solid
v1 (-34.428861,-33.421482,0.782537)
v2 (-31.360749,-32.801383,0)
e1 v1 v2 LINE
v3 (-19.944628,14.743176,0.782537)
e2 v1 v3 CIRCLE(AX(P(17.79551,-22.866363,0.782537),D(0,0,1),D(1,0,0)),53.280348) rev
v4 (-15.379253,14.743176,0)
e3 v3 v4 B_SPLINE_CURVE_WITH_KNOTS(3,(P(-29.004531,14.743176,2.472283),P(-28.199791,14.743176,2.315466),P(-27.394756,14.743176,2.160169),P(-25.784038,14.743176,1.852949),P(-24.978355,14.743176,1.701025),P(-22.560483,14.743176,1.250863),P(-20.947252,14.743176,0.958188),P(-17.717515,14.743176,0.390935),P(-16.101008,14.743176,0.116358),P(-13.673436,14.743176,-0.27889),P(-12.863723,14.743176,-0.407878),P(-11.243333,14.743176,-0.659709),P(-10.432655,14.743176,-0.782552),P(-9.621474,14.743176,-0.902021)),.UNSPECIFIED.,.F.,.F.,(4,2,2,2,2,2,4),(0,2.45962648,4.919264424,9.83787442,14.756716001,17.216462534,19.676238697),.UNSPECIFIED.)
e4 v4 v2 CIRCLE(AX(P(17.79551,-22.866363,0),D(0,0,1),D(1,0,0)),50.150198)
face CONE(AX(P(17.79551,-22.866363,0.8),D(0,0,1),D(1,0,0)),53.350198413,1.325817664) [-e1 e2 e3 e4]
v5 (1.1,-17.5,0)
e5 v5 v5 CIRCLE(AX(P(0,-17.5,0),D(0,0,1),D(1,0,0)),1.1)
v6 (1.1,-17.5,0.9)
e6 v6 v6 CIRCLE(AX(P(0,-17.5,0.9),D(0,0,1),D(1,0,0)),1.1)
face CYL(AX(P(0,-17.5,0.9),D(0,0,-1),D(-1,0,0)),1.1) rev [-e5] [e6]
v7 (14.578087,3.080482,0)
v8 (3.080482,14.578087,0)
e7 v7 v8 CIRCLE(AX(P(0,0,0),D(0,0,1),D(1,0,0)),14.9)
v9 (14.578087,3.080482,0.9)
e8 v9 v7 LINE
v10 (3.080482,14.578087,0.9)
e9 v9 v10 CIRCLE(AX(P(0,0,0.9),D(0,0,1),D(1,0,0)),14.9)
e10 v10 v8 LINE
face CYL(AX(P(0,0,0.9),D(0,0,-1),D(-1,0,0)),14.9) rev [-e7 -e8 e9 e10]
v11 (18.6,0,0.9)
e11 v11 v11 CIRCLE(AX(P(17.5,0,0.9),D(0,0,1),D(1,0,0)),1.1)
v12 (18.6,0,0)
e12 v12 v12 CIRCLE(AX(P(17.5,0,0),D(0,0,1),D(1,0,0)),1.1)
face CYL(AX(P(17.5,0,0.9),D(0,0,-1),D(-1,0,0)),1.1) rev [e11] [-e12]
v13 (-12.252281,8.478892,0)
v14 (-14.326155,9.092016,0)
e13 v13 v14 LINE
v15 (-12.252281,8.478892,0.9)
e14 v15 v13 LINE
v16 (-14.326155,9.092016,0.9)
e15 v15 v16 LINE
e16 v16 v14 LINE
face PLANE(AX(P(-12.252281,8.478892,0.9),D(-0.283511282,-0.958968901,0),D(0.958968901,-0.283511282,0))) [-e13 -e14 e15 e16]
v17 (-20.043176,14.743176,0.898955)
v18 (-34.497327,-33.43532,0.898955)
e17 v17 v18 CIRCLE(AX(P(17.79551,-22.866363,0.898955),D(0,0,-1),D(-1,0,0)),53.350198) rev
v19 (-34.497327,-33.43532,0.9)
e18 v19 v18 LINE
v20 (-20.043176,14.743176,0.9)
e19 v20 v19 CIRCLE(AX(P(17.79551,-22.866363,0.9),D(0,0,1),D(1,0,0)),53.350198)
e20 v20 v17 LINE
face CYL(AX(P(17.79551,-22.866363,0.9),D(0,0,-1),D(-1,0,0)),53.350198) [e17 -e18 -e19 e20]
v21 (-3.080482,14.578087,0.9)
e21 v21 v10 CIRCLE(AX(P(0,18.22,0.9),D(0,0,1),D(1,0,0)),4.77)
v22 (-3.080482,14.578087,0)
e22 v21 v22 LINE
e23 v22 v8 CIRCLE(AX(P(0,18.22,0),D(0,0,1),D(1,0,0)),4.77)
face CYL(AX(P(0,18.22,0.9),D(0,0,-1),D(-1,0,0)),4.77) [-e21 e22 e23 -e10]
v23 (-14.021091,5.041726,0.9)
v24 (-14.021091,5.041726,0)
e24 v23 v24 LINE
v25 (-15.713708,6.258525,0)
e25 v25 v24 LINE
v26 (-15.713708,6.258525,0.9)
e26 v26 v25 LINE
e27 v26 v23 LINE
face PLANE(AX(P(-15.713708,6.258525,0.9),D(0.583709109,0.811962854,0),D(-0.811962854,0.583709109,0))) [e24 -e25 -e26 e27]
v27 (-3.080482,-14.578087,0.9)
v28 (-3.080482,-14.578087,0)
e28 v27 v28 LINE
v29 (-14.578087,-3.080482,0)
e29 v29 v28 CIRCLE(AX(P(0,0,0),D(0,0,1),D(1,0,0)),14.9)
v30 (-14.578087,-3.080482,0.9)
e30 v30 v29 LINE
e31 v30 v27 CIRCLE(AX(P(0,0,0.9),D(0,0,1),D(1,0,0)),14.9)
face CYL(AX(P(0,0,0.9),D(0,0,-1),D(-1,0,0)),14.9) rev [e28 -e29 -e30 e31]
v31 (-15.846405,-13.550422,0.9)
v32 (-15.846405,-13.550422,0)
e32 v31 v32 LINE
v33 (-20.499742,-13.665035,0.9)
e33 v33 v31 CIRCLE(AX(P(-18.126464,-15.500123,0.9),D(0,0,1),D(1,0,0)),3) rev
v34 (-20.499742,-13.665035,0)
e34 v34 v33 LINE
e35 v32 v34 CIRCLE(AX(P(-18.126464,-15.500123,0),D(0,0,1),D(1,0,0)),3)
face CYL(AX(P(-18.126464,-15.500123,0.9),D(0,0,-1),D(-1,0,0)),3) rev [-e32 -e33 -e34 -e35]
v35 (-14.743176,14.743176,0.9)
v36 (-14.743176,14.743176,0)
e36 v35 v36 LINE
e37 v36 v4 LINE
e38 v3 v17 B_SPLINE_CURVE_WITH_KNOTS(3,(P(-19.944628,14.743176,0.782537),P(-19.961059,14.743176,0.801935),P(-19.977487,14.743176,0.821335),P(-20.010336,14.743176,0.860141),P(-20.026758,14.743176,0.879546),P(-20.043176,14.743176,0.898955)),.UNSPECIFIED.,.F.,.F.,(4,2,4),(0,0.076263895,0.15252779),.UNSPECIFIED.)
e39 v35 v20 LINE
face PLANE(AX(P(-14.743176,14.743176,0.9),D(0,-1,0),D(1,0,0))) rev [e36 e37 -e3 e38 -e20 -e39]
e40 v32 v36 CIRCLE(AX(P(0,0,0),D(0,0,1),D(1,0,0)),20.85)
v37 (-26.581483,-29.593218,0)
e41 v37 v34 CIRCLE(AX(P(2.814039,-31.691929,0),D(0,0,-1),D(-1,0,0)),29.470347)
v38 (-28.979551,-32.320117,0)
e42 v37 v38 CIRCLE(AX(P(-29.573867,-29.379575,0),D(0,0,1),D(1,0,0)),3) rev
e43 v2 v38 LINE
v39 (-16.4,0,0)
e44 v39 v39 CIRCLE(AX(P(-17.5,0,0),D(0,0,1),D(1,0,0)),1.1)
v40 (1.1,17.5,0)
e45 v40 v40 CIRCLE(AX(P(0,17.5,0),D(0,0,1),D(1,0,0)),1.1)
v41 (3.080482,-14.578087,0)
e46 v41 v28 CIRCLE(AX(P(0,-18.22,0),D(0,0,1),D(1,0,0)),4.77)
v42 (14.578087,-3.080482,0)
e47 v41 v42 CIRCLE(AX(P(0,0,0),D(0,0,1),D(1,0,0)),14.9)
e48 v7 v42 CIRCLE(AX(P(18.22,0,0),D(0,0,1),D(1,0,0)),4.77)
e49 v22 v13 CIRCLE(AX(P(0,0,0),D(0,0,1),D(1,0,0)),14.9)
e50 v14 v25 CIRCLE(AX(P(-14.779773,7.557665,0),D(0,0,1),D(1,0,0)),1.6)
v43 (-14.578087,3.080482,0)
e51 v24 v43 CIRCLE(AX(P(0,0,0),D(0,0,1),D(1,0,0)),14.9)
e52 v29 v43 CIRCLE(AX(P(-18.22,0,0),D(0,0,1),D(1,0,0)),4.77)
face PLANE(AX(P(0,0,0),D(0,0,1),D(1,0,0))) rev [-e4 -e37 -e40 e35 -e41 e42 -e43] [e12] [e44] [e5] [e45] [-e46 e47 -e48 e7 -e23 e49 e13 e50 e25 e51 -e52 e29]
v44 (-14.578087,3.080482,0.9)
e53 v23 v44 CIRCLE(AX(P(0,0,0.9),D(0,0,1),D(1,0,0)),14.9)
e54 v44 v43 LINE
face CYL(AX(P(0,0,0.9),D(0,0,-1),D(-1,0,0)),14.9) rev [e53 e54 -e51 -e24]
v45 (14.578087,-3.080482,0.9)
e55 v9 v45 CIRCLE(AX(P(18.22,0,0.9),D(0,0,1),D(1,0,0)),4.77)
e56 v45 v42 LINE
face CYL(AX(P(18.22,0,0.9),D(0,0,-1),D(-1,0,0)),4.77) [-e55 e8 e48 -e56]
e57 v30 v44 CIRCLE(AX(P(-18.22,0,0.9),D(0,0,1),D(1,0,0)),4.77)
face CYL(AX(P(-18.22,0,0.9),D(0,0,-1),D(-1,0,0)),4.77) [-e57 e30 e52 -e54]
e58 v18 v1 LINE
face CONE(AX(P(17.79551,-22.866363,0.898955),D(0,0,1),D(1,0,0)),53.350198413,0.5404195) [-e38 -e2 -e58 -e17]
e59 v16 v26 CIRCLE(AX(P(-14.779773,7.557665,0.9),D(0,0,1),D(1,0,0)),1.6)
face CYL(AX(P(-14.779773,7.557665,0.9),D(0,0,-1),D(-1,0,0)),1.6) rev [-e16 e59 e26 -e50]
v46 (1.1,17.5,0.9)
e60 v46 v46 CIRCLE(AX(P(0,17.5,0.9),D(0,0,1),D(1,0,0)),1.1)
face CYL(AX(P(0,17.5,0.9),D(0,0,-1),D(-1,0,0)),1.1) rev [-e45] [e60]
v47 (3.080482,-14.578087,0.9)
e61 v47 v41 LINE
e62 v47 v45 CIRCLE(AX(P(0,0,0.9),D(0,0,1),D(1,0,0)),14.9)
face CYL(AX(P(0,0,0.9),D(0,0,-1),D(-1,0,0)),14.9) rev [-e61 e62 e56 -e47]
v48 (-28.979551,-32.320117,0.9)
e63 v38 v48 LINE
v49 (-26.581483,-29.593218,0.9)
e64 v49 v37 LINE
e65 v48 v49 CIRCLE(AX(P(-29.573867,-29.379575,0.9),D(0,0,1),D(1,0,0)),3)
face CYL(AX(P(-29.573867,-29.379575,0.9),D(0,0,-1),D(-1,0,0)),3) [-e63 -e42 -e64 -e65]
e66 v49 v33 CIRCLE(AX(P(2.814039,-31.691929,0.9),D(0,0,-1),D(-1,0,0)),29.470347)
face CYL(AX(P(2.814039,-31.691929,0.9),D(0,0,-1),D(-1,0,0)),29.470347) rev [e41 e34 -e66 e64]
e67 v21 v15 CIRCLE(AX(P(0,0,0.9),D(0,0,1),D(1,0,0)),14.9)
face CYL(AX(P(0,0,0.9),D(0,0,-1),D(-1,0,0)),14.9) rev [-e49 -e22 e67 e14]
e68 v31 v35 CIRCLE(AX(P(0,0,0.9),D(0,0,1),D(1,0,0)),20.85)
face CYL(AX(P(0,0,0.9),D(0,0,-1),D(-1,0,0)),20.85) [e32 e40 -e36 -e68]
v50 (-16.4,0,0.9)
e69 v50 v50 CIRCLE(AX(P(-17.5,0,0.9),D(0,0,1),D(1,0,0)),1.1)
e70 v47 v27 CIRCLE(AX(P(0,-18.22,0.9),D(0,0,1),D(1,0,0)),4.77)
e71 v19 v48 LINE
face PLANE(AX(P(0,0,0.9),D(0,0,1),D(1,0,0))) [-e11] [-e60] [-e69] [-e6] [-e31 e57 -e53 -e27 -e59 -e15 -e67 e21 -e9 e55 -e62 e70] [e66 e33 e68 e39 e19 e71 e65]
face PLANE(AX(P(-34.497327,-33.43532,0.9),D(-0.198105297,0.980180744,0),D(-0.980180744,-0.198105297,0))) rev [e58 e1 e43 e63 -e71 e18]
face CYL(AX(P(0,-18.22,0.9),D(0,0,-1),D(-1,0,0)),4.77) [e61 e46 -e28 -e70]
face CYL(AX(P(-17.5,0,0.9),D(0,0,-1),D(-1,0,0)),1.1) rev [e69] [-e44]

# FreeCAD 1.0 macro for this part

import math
import FreeCAD as App
import Part
import Sketcher

V = App.Vector


def edges_at(feature, points):
    """Names of the edges that pass closest to the given points."""
    edges = feature.Shape.Edges
    near = lambda p: min(range(len(edges)), key=lambda i: edges[i].distToShape(Part.Vertex(*p))[0])
    return sorted({f"Edge{near(p) + 1}" for p in points})


def add_polygon(sketch, points):
    """Adds a closed chain of lines whose ends are joined by coincident constraints."""
    first, n = sketch.GeometryCount, len(points)
    for a, b in zip(points, points[1:] + points[:1]):
        sketch.addGeometry(Part.LineSegment(App.Vector(*a, 0), App.Vector(*b, 0)), False)
    for i in range(n):
        sketch.addConstraint(Sketcher.Constraint("Coincident", first + i, 2, first + (i + 1) % n, 1))

doc = App.newDocument("Part")
body = doc.addObject("PartDesign::Body", "Body")

# Sketch on XY plane
sketch1 = doc.addObject("Sketcher::SketchObject", "Sketch")
body.addObject(sketch1)
sketch1.AttachmentSupport = (doc.XY_Plane, [""])
sketch1.MapMode = "FlatFace"
sketch1.addGeometry([
    Part.LineSegment(V(-14.7, 14.7, 0), V(-20, 14.7, 0)),  # 0
    Part.ArcOfCircle(Part.Circle(V(17.8, -22.9, 0), V(0, 0, 1), 53.4), math.radians(135), math.radians(191)),  # 1
    Part.LineSegment(V(-34.5, -33.4, 0), V(-26.7, -31.9, 0)),  # 2
    Part.ArcOfCircle(Part.Circle(V(2.8, -31.7, 0), V(0, 0, 1), 29.5), math.radians(135), math.radians(180)),  # 3
    Part.ArcOfCircle(Part.Circle(V(0, 0, 0), V(0, 0, 1), 20.9), math.radians(-149), math.radians(-100)),  # 4
    Part.ArcOfCircle(Part.Circle(V(0, 0, 0), V(0, 0, 1), 20.9), math.radians(-100), math.radians(80)),  # 5
    Part.ArcOfCircle(Part.Circle(V(0, 0, 0), V(0, 0, 1), 20.8), math.radians(80), math.radians(135)),  # 6
    Part.Circle(V(0, -17.5, 0), V(0, 0, 1), 1.1),  # 7
    Part.Circle(V(-17.5, 0, 0), V(0, 0, 1), 1.1),  # 8
    Part.LineSegment(V(-14, 5, 0), V(-15.7, 6.3, 0)),  # 9
    Part.ArcOfCircle(Part.Circle(V(-14.8, 7.6, 0), V(0, 0, 1), 1.6), math.radians(74), math.radians(234)),  # 10
    Part.LineSegment(V(-14.3, 9.1, 0), V(-12.3, 8.5, 0)),  # 11
    Part.ArcOfCircle(Part.Circle(V(0, 0, 0), V(0, 0, 1), 14.9), math.radians(102), math.radians(145)),  # 12
    Part.ArcOfCircle(Part.Circle(V(0, 18.2, 0), V(0, 0, 1), 4.8), math.radians(-130), math.radians(-50)),  # 13
    Part.ArcOfCircle(Part.Circle(V(0, 0, 0), V(0, 0, 1), 14.9), math.radians(12), math.radians(78)),  # 14
    Part.ArcOfCircle(Part.Circle(V(18.2, 0, 0), V(0, 0, 1), 4.8), math.radians(140), math.radians(220)),  # 15
    Part.ArcOfCircle(Part.Circle(V(0, 0, 0), V(0, 0, 1), 14.9), math.radians(-78), math.radians(-12)),  # 16
    Part.ArcOfCircle(Part.Circle(V(0, -18.2, 0), V(0, 0, 1), 4.8), math.radians(50), math.radians(130)),  # 17
    Part.ArcOfCircle(Part.Circle(V(0, 0, 0), V(0, 0, 1), 14.9), math.radians(-168), math.radians(-102)),  # 18
    Part.ArcOfCircle(Part.Circle(V(-18.2, 0, 0), V(0, 0, 1), 4.8), math.radians(-40), math.radians(40)),  # 19
    Part.ArcOfCircle(Part.Circle(V(0, 0, 0), V(0, 0, 1), 14.9), math.radians(160.22), math.radians(168.07)),  # 20
    Part.Circle(V(17.5, 0, 0), V(0, 0, 1), 1.1),  # 21
    Part.Circle(V(0, 17.5, 0), V(0, 0, 1), 1.1),  # 22
], False)
sketch1.addConstraint([
    Sketcher.Constraint("Coincident", 0, 2, 1, 1),
    Sketcher.Constraint("Coincident", 1, 2, 2, 1),
    Sketcher.Constraint("Coincident", 2, 2, 3, 2),
    Sketcher.Constraint("Coincident", 3, 1, 4, 1),
    Sketcher.Constraint("Tangent", 4, 2, 5, 1),
    Sketcher.Constraint("Tangent", 5, 2, 6, 1),
    Sketcher.Constraint("Coincident", 6, 2, 0, 1),
    Sketcher.Constraint("Tangent", 9, 2, 10, 2),
    Sketcher.Constraint("Tangent", 10, 1, 11, 1),
    Sketcher.Constraint("Coincident", 11, 2, 12, 2),
    Sketcher.Constraint("Coincident", 12, 1, 13, 1),
    Sketcher.Constraint("Coincident", 13, 2, 14, 2),
    Sketcher.Constraint("Coincident", 14, 1, 15, 1),
    Sketcher.Constraint("Coincident", 15, 2, 16, 2),
    Sketcher.Constraint("Coincident", 16, 1, 17, 1),
    Sketcher.Constraint("Coincident", 17, 2, 18, 2),
    Sketcher.Constraint("Coincident", 18, 1, 19, 1),
    Sketcher.Constraint("Coincident", 19, 2, 20, 2),
    Sketcher.Constraint("Coincident", 20, 1, 9, 1),
    Sketcher.Constraint("Horizontal", 0),
    Sketcher.Constraint("Coincident", 4, 3, -1, 1),
    Sketcher.Constraint("Coincident", 12, 3, -1, 1),
    Sketcher.Constraint("Coincident", 14, 3, -1, 1),
    Sketcher.Constraint("Coincident", 16, 3, -1, 1),
    Sketcher.Constraint("Coincident", 18, 3, -1, 1),
    Sketcher.Constraint("Coincident", 20, 3, -1, 1),
    Sketcher.Constraint("Equal", 4, 5),
    Sketcher.Constraint("Equal", 5, 6),
    Sketcher.Constraint("Equal", 7, 8),
    Sketcher.Constraint("Equal", 12, 14),
    Sketcher.Constraint("Equal", 13, 15),
    Sketcher.Constraint("Equal", 14, 16),
    Sketcher.Constraint("Equal", 15, 17),
    Sketcher.Constraint("Equal", 16, 18),
    Sketcher.Constraint("Equal", 17, 19),
    Sketcher.Constraint("Equal", 18, 20),
    Sketcher.Constraint("Equal", 8, 21),
    Sketcher.Constraint("Equal", 21, 22),
    Sketcher.Constraint("Symmetric", 13, 3, 17, 3, -1, 1),
    Sketcher.Constraint("Symmetric", 15, 3, 19, 3, -1, 1),
    Sketcher.Constraint("Symmetric", 8, 3, 21, 3, -1, 1),
    Sketcher.Constraint("Symmetric", 7, 3, 22, 3, -1, 1),
    Sketcher.Constraint("PointOnObject", 7, 3, -2),
    Sketcher.Constraint("PointOnObject", 8, 3, -1),
    Sketcher.Constraint("PointOnObject", 13, 3, -2),
    Sketcher.Constraint("PointOnObject", 15, 3, -1),
    Sketcher.Constraint("Diameter", 7, 2.2),
    Sketcher.Constraint("Radius", 10, 1.6),
    Sketcher.Constraint("Radius", 12, 14.9),
    Sketcher.Constraint("Radius", 4, 20.85),
    Sketcher.Constraint("Radius", 13, 4.77),
    Sketcher.Constraint("Distance", 2, 8.0),
    Sketcher.Constraint("DistanceX", 0, 2, 0, 1, 5.3),
    Sketcher.Constraint("DistanceY", 7, 3, -1, 1, 17.5),
    Sketcher.Constraint("DistanceX", 8, 3, -1, 1, 17.5),
    Sketcher.Constraint("Radius", 1, 53.350198),
    Sketcher.Constraint("DistanceY", -1, 1, 13, 3, 18.22),
    Sketcher.Constraint("DistanceX", -1, 1, 15, 3, 18.22),
    Sketcher.Constraint("Radius", 3, 29.470347),
    Sketcher.Constraint("Distance", 9, 2.084598),
    Sketcher.Constraint("DistanceX", 11, 2, 12, 1, 9.171799),
    Sketcher.Constraint("DistanceY", 20, 1, 9, 2, 1.216799),
    Sketcher.Constraint("Distance", 11, 2.162608),
    Sketcher.Constraint("DistanceX", -1, 1, 1, 3, 17.79551),
    Sketcher.Constraint("DistanceX", -1, 1, 3, 3, 2.814039),
    Sketcher.Constraint("DistanceY", 3, 3, -1, 1, 31.691929),
    Sketcher.Constraint("DistanceY", 1, 2, -1, 1, 33.43532),
    Sketcher.Constraint("DistanceY", 4, 2, -1, 1, 20.55969),
    Sketcher.Constraint("DistanceY", -1, 1, 5, 2, 20.55969),
    Sketcher.Constraint("DistanceY", 10, 3, 0, 2, 7.185511),
])
pad1 = doc.addObject("PartDesign::Pad", "Pad")
body.addObject(pad1)
pad1.Profile = sketch1
pad1.Length = 0.9

# Sketch on an angled plane
sketch2 = doc.addObject("Sketcher::SketchObject", "Sketch001")
body.addObject(sketch2)
sketch2.Placement = App.Placement(V(5.138565, -25.424471, 0), App.Rotation(V(0.980180744, 0.198105297, 0), V(0, 0, 1), V(0.198105297, -0.980180744, 0), "ZXY"))
add_polygon(sketch2, [(-40.4, 0.8), (-40.4, 0), (-37.2, 0)])  # lines 0-2
sketch2.addConstraint([
    Sketcher.Constraint("Vertical", 0),
    Sketcher.Constraint("Horizontal", 1),
    Sketcher.Constraint("PointOnObject", 0, 2, -1),
    Sketcher.Constraint("DistanceX", 1, 1, 1, 2, 3.2),
    Sketcher.Constraint("DistanceY", 0, 2, 0, 1, 0.8),
    Sketcher.Constraint("DistanceX", 0, 2, -1, 1, 40.43733),
])

# Sketch on XY plane
sketch3 = doc.addObject("Sketcher::SketchObject", "Sketch002")
body.addObject(sketch3)
sketch3.AttachmentSupport = (doc.XY_Plane, [""])
sketch3.MapMode = "FlatFace"
sketch3.AttachmentOffset = App.Placement(V(0, 0, 0.9), App.Rotation())
sketch3.addGeometry(Part.ArcOfCircle(Part.Circle(V(18, -23, 0), V(0, 0, 1), 53), math.radians(127), math.radians(191)), False)
sketch3.addConstraint([
    Sketcher.Constraint("Radius", 0, 53.350198),
    Sketcher.Constraint("DistanceX", -1, 1, 0, 3, 17.79551),
    Sketcher.Constraint("DistanceY", 0, 2, -1, 1, 33.43532),
    Sketcher.Constraint("DistanceX", 0, 2, 0, 1, 20.21528),
    Sketcher.Constraint("DistanceY", 0, 3, -1, 1, 22.866363),
])
doc.recompute()

subtractivepipe = doc.addObject("PartDesign::SubtractivePipe", "SubtractivePipe")
body.addObject(subtractivepipe)
subtractivepipe.Profile = sketch2
subtractivepipe.Spine = (sketch3, ["Edge1"])
doc.recompute()

chamfer = doc.addObject("PartDesign::Chamfer", "Chamfer")
body.addObject(chamfer)
chamfer.Base = (subtractivepipe, edges_at(subtractivepipe, [(-33.305, -7.536, 0.8)]))
chamfer.ChamferType = "Two distances"
chamfer.Size = 0.072
chamfer.Size2 = 0.098955
doc.recompute()

fillet = doc.addObject("PartDesign::Fillet", "Fillet")
body.addObject(fillet)
fillet.Base = (chamfer, edges_at(chamfer, [(-17.886, -10.715, 0.45)]))
fillet.Radius = 3
doc.recompute()

fillet2 = doc.addObject("PartDesign::Fillet", "Fillet001")
body.addObject(fillet2)
fillet2.Base = (fillet, edges_at(fillet, [(-26.656, -31.85, 0.45)]))
fillet2.Radius = 3

doc.recompute()
